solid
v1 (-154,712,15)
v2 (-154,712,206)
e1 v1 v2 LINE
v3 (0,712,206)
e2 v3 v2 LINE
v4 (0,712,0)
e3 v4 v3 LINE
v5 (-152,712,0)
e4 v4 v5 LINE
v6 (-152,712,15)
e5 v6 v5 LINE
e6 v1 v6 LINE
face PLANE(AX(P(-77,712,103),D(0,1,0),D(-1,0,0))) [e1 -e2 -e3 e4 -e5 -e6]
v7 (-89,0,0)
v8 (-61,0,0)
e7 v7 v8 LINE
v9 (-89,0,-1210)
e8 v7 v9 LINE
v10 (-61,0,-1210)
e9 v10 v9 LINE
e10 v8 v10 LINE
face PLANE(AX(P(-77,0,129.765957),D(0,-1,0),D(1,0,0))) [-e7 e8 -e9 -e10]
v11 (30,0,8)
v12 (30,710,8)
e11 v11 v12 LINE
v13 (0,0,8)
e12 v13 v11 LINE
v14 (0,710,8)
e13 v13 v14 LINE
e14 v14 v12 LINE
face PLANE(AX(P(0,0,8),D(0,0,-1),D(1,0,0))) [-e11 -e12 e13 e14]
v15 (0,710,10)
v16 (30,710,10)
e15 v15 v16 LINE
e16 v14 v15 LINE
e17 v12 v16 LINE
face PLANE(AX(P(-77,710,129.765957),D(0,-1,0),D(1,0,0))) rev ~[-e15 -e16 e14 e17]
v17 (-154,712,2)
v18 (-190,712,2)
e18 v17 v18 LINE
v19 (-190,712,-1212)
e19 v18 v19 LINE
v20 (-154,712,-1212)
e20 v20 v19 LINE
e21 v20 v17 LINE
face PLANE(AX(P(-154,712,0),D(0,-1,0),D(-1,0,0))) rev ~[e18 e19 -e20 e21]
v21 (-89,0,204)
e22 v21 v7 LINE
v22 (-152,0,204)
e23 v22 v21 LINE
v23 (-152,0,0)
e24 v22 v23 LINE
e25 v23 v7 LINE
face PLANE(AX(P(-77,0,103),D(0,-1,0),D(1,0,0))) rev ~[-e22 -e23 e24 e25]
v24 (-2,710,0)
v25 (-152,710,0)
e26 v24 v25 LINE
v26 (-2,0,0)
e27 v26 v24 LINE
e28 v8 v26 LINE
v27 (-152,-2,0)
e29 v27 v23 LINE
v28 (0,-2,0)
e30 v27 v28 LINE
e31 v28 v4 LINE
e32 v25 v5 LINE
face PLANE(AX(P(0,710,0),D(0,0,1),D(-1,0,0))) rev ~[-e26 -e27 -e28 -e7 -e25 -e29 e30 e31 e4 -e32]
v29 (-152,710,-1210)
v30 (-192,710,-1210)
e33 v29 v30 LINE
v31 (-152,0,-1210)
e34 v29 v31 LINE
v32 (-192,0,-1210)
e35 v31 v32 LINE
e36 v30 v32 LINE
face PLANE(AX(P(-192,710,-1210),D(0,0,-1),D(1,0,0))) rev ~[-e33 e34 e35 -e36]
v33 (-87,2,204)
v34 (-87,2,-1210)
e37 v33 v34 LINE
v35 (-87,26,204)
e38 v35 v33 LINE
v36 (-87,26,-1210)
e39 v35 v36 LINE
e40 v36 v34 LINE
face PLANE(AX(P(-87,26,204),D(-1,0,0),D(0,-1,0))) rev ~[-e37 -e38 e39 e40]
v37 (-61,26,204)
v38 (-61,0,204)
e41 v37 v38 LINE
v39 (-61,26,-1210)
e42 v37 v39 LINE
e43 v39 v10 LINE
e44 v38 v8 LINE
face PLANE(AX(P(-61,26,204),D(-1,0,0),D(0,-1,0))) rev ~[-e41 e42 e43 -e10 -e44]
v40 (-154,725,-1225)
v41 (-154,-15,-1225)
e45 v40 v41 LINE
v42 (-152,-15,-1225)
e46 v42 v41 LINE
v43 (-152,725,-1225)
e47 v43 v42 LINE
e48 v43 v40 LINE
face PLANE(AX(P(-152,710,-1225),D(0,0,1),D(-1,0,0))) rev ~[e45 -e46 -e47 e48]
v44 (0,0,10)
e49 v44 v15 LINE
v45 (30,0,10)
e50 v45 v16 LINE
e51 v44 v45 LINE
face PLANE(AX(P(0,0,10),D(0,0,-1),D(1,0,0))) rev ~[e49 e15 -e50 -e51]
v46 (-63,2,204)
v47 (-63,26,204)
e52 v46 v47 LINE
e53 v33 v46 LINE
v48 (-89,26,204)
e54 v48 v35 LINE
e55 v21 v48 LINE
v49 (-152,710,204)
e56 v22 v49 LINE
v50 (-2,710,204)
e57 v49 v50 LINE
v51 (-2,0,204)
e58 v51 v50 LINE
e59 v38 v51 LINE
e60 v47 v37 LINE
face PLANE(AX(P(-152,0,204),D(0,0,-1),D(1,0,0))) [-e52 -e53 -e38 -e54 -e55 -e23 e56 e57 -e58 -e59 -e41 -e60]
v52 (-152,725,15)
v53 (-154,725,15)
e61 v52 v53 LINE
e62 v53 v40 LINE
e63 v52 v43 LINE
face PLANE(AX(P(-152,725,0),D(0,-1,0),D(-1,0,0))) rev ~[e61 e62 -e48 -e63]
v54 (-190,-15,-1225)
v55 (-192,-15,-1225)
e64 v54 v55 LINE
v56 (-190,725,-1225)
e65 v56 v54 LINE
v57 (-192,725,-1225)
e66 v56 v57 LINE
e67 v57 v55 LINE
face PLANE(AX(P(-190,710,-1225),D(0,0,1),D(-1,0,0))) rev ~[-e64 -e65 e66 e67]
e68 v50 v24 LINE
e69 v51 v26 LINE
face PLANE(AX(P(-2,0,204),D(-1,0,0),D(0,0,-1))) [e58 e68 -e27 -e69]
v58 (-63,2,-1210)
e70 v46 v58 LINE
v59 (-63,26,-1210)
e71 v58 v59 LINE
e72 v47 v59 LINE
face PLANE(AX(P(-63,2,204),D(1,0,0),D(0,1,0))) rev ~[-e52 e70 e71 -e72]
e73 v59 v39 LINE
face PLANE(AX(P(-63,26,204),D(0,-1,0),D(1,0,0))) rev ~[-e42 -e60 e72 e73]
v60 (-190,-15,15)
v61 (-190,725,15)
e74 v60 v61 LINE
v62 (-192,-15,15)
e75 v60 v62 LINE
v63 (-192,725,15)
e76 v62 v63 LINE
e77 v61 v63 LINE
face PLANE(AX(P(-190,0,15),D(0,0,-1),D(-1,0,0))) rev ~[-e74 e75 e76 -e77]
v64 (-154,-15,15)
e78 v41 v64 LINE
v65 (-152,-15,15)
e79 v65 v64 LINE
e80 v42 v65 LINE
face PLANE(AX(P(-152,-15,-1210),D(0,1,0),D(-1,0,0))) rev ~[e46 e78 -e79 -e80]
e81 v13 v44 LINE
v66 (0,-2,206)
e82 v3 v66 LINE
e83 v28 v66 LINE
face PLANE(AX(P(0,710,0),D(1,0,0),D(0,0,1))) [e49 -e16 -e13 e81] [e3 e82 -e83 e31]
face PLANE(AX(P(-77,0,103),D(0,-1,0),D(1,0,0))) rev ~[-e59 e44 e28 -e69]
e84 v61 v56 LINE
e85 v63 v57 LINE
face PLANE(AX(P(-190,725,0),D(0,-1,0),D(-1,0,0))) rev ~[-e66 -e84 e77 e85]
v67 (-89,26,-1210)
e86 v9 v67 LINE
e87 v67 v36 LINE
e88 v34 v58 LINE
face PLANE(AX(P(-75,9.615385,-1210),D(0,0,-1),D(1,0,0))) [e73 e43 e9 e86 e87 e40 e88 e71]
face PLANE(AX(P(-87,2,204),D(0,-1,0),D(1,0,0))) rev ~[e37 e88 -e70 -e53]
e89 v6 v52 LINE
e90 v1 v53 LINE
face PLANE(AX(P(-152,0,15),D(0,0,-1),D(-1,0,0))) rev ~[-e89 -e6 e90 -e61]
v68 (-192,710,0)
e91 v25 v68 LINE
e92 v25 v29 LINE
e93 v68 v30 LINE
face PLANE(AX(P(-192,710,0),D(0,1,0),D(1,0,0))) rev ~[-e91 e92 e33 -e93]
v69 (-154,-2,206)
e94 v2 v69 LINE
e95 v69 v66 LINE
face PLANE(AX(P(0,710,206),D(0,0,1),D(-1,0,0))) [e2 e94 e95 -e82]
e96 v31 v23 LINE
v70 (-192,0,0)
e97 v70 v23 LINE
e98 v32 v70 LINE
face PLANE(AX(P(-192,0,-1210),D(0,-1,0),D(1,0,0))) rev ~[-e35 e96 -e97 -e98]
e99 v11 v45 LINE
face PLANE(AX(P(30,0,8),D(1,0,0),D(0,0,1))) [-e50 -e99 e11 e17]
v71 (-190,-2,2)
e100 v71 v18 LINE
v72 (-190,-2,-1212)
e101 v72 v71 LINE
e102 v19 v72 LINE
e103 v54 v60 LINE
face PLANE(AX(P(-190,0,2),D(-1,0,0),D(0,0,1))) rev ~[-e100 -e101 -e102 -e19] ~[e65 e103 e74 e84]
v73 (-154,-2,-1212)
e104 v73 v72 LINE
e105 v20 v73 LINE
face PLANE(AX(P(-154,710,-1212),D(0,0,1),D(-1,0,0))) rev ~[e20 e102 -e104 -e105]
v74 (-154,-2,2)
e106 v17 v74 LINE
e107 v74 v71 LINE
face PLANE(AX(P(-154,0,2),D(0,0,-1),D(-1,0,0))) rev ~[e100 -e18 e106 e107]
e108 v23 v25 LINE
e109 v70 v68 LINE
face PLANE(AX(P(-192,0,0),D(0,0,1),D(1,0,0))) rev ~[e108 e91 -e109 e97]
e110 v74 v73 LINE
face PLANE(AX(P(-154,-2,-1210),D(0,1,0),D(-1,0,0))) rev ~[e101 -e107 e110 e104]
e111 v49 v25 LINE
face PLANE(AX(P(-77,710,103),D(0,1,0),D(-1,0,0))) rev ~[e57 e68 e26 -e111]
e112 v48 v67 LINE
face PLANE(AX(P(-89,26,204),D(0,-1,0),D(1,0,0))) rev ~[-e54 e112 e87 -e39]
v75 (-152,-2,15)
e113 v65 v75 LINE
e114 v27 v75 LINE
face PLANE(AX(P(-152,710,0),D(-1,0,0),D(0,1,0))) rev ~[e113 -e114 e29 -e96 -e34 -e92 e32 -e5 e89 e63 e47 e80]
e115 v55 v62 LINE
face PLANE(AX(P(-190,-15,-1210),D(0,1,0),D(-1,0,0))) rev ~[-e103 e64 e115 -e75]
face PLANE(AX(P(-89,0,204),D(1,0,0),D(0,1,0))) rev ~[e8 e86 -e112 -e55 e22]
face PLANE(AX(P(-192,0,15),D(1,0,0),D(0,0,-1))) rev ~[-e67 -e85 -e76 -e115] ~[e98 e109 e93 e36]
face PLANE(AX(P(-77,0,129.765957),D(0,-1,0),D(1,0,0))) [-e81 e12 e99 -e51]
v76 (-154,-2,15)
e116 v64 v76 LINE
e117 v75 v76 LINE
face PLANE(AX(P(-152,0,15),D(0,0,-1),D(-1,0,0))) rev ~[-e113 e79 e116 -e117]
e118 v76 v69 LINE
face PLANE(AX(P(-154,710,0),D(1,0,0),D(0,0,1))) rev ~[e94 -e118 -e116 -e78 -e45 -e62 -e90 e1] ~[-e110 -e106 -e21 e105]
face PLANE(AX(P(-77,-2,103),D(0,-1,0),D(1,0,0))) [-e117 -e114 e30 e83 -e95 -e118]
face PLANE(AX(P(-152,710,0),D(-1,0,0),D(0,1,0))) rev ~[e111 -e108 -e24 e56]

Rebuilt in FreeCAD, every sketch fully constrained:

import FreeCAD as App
import Part
import Sketcher


def add_polygon(sketch, points):
    """Adds a closed chain of lines whose ends are joined by coincident constraints."""
    first, n = sketch.GeometryCount, len(points)
    for a, b in zip(points, points[1:] + points[:1]):
        sketch.addGeometry(Part.LineSegment(App.Vector(*a, 0), App.Vector(*b, 0)), False)
    for i in range(n):
        sketch.addConstraint(Sketcher.Constraint("Coincident", first + i, 2, first + (i + 1) % n, 1))

doc = App.newDocument("Part")
body = doc.addObject("PartDesign::Body", "Body")

sketch1 = doc.addObject("Sketcher::SketchObject", "Sketch")
body.addObject(sketch1)
sketch1.AttachmentSupport = (doc.XZ_Plane, [""])
sketch1.MapMode = "FlatFace"
add_polygon(sketch1, [(-2, 0), (0, 0), (0, 8), (30, 8), (30, 10), (0, 10), (0, 206), (-154, 206), (-154, 0), (-152, 0), (-152, 204), (-2, 204)])
sketch1.addConstraint(Sketcher.Constraint("Horizontal", 0))
sketch1.addConstraint(Sketcher.Constraint("Vertical", 1))
sketch1.addConstraint(Sketcher.Constraint("Horizontal", 2))
sketch1.addConstraint(Sketcher.Constraint("Vertical", 3))
sketch1.addConstraint(Sketcher.Constraint("Horizontal", 4))
sketch1.addConstraint(Sketcher.Constraint("Vertical", 5))
sketch1.addConstraint(Sketcher.Constraint("Horizontal", 6))
sketch1.addConstraint(Sketcher.Constraint("Vertical", 7))
sketch1.addConstraint(Sketcher.Constraint("Horizontal", 8))
sketch1.addConstraint(Sketcher.Constraint("Vertical", 9))
sketch1.addConstraint(Sketcher.Constraint("Horizontal", 10))
sketch1.addConstraint(Sketcher.Constraint("Vertical", 11))
sketch1.addConstraint(Sketcher.Constraint("Coincident", 0, 2, -1, 1))
sketch1.addConstraint(Sketcher.Constraint("PointOnObject", 4, 2, -2))
sketch1.addConstraint(Sketcher.Constraint("PointOnObject", 7, 2, -1))
sketch1.addConstraint(Sketcher.Constraint("Equal", 0, 8))
sketch1.addConstraint(Sketcher.Constraint("Equal", 8, 3))
sketch1.addConstraint(Sketcher.Constraint("DistanceX", 0, 1, 0, 2, 2.0))
sketch1.addConstraint(Sketcher.Constraint("DistanceX", 2, 1, 2, 2, 30.0))
sketch1.addConstraint(Sketcher.Constraint("DistanceX", 6, 2, 6, 1, 154.0))
sketch1.addConstraint(Sketcher.Constraint("DistanceY", 1, 1, 1, 2, 8.0))
sketch1.addConstraint(Sketcher.Constraint("DistanceY", 5, 1, 5, 2, 196.0))
sketch1.addConstraint(Sketcher.Constraint("DistanceY", 9, 1, 9, 2, 204.0))
pad1 = doc.addObject("PartDesign::Pad", "Pad")
body.addObject(pad1)
pad1.Profile = sketch1
pad1.Length = 710
pad1.Reversed = True

sketch2 = doc.addObject("Sketcher::SketchObject", "Sketch001")
body.addObject(sketch2)
sketch2.AttachmentSupport = (doc.XZ_Plane, [""])
sketch2.MapMode = "FlatFace"
add_polygon(sketch2, [(-192, 0), (-152, 0), (-152, 15), (-154, 15), (-154, 2), (-190, 2), (-190, 15), (-192, 15)])
sketch2.addConstraint(Sketcher.Constraint("Horizontal", 0))
sketch2.addConstraint(Sketcher.Constraint("Vertical", 1))
sketch2.addConstraint(Sketcher.Constraint("Horizontal", 2))
sketch2.addConstraint(Sketcher.Constraint("Vertical", 3))
sketch2.addConstraint(Sketcher.Constraint("Horizontal", 4))
sketch2.addConstraint(Sketcher.Constraint("Vertical", 5))
sketch2.addConstraint(Sketcher.Constraint("Horizontal", 6))
sketch2.addConstraint(Sketcher.Constraint("Vertical", 7))
sketch2.addConstraint(Sketcher.Constraint("PointOnObject", 0, 2, -1))
sketch2.addConstraint(Sketcher.Constraint("Horizontal", 2, 2, 5, 2))
sketch2.addConstraint(Sketcher.Constraint("Equal", 2, 6))
sketch2.addConstraint(Sketcher.Constraint("DistanceX", 0, 1, 0, 2, 40.0))
sketch2.addConstraint(Sketcher.Constraint("DistanceX", 2, 2, 2, 1, 2.0))
sketch2.addConstraint(Sketcher.Constraint("DistanceY", 1, 1, 1, 2, 15.0))
sketch2.addConstraint(Sketcher.Constraint("DistanceY", 3, 2, 3, 1, 13.0))
sketch2.addConstraint(Sketcher.Constraint("DistanceX", 0, 2, -1, 1, 152.0))

sketch3 = doc.addObject("Sketcher::SketchObject", "Sketch002")
body.addObject(sketch3)
sketch3.AttachmentSupport = (doc.YZ_Plane, [""])
sketch3.MapMode = "FlatFace"
sketch3.AttachmentOffset = App.Placement(App.Vector(0, 0, -152), App.Rotation())
add_polygon(sketch3, [(0, 0), (710, 0), (710, -1210), (0, -1210)])
sketch3.addConstraint(Sketcher.Constraint("Horizontal", 0))
sketch3.addConstraint(Sketcher.Constraint("Vertical", 1))
sketch3.addConstraint(Sketcher.Constraint("Horizontal", 2))
sketch3.addConstraint(Sketcher.Constraint("Vertical", 3))
sketch3.addConstraint(Sketcher.Constraint("Coincident", 3, 2, -1, 1))
sketch3.addConstraint(Sketcher.Constraint("DistanceX", 0, 1, 0, 2, 710.0))
sketch3.addConstraint(Sketcher.Constraint("DistanceY", 1, 2, 1, 1, 1210.0))
doc.recompute()

additivepipe = doc.addObject("PartDesign::AdditivePipe", "AdditivePipe")
body.addObject(additivepipe)
additivepipe.Profile = sketch2
additivepipe.Spine = (sketch3, ["Edge1", "Edge2", "Edge3", "Edge4"])
additivepipe.Transition = "Right corner"

sketch4 = doc.addObject("Sketcher::SketchObject", "Sketch003")
body.addObject(sketch4)
sketch4.AttachmentSupport = (doc.XY_Plane, [""])
sketch4.MapMode = "FlatFace"
sketch4.AttachmentOffset = App.Placement(App.Vector(0, 0, 204), App.Rotation())
add_polygon(sketch4, [(-89, 0), (-89, 26), (-87, 26), (-87, 2), (-63, 2), (-63, 26), (-61, 26), (-61, 0)])
sketch4.addConstraint(Sketcher.Constraint("Vertical", 0))
sketch4.addConstraint(Sketcher.Constraint("Horizontal", 1))
sketch4.addConstraint(Sketcher.Constraint("Vertical", 2))
sketch4.addConstraint(Sketcher.Constraint("Horizontal", 3))
sketch4.addConstraint(Sketcher.Constraint("Vertical", 4))
sketch4.addConstraint(Sketcher.Constraint("Horizontal", 5))
sketch4.addConstraint(Sketcher.Constraint("Vertical", 6))
sketch4.addConstraint(Sketcher.Constraint("Horizontal", 7))
sketch4.addConstraint(Sketcher.Constraint("PointOnObject", 6, 2, -1))
sketch4.addConstraint(Sketcher.Constraint("Horizontal", 1, 2, 4, 2))
sketch4.addConstraint(Sketcher.Constraint("Equal", 1, 5))
sketch4.addConstraint(Sketcher.Constraint("Equal", 3, 2))
sketch4.addConstraint(Sketcher.Constraint("DistanceX", 1, 1, 1, 2, 2.0))
sketch4.addConstraint(Sketcher.Constraint("DistanceX", 3, 1, 3, 2, 24.0))
sketch4.addConstraint(Sketcher.Constraint("DistanceY", 0, 1, 0, 2, 26.0))
sketch4.addConstraint(Sketcher.Constraint("DistanceX", 0, 2, -1, 1, 89.0))
pad2 = doc.addObject("PartDesign::Pad", "Pad001")
body.addObject(pad2)
pad2.Profile = sketch4
pad2.Length = 1414
pad2.Reversed = True

sketch5 = doc.addObject("Sketcher::SketchObject", "Sketch004")
body.addObject(sketch5)
sketch5.AttachmentSupport = (doc.XZ_Plane, [""])
sketch5.MapMode = "FlatFace"
add_polygon(sketch5, [(-154, 206), (-154, 0), (0, 0), (0, 206)])
sketch5.addConstraint(Sketcher.Constraint("Vertical", 0))
sketch5.addConstraint(Sketcher.Constraint("Horizontal", 1))
sketch5.addConstraint(Sketcher.Constraint("Vertical", 2))
sketch5.addConstraint(Sketcher.Constraint("Horizontal", 3))
sketch5.addConstraint(Sketcher.Constraint("Coincident", 1, 2, -1, 1))
sketch5.addConstraint(Sketcher.Constraint("DistanceX", 1, 1, 1, 2, 154.0))
sketch5.addConstraint(Sketcher.Constraint("DistanceY", 0, 2, 0, 1, 206.0))
pad3 = doc.addObject("PartDesign::Pad", "Pad002")
body.addObject(pad3)
pad3.Profile = sketch5
pad3.Length = 2

sketch6 = doc.addObject("Sketcher::SketchObject", "Sketch005")
body.addObject(sketch6)
sketch6.AttachmentSupport = (doc.XZ_Plane, [""])
sketch6.MapMode = "FlatFace"
sketch6.AttachmentOffset = App.Placement(App.Vector(0, 0, -710), App.Rotation())
add_polygon(sketch6, [(0, 206), (0, 0), (-154, 0), (-154, 206)])
sketch6.addConstraint(Sketcher.Constraint("Vertical", 0))
sketch6.addConstraint(Sketcher.Constraint("Horizontal", 1))
sketch6.addConstraint(Sketcher.Constraint("Vertical", 2))
sketch6.addConstraint(Sketcher.Constraint("Horizontal", 3))
sketch6.addConstraint(Sketcher.Constraint("Coincident", 0, 2, -1, 1))
sketch6.addConstraint(Sketcher.Constraint("DistanceX", 1, 2, 1, 1, 154.0))
sketch6.addConstraint(Sketcher.Constraint("DistanceY", 0, 2, 0, 1, 206.0))
pad4 = doc.addObject("PartDesign::Pad", "Pad003")
body.addObject(pad4)
pad4.Profile = sketch6
pad4.Length = 2
pad4.Reversed = True

doc.recompute()
